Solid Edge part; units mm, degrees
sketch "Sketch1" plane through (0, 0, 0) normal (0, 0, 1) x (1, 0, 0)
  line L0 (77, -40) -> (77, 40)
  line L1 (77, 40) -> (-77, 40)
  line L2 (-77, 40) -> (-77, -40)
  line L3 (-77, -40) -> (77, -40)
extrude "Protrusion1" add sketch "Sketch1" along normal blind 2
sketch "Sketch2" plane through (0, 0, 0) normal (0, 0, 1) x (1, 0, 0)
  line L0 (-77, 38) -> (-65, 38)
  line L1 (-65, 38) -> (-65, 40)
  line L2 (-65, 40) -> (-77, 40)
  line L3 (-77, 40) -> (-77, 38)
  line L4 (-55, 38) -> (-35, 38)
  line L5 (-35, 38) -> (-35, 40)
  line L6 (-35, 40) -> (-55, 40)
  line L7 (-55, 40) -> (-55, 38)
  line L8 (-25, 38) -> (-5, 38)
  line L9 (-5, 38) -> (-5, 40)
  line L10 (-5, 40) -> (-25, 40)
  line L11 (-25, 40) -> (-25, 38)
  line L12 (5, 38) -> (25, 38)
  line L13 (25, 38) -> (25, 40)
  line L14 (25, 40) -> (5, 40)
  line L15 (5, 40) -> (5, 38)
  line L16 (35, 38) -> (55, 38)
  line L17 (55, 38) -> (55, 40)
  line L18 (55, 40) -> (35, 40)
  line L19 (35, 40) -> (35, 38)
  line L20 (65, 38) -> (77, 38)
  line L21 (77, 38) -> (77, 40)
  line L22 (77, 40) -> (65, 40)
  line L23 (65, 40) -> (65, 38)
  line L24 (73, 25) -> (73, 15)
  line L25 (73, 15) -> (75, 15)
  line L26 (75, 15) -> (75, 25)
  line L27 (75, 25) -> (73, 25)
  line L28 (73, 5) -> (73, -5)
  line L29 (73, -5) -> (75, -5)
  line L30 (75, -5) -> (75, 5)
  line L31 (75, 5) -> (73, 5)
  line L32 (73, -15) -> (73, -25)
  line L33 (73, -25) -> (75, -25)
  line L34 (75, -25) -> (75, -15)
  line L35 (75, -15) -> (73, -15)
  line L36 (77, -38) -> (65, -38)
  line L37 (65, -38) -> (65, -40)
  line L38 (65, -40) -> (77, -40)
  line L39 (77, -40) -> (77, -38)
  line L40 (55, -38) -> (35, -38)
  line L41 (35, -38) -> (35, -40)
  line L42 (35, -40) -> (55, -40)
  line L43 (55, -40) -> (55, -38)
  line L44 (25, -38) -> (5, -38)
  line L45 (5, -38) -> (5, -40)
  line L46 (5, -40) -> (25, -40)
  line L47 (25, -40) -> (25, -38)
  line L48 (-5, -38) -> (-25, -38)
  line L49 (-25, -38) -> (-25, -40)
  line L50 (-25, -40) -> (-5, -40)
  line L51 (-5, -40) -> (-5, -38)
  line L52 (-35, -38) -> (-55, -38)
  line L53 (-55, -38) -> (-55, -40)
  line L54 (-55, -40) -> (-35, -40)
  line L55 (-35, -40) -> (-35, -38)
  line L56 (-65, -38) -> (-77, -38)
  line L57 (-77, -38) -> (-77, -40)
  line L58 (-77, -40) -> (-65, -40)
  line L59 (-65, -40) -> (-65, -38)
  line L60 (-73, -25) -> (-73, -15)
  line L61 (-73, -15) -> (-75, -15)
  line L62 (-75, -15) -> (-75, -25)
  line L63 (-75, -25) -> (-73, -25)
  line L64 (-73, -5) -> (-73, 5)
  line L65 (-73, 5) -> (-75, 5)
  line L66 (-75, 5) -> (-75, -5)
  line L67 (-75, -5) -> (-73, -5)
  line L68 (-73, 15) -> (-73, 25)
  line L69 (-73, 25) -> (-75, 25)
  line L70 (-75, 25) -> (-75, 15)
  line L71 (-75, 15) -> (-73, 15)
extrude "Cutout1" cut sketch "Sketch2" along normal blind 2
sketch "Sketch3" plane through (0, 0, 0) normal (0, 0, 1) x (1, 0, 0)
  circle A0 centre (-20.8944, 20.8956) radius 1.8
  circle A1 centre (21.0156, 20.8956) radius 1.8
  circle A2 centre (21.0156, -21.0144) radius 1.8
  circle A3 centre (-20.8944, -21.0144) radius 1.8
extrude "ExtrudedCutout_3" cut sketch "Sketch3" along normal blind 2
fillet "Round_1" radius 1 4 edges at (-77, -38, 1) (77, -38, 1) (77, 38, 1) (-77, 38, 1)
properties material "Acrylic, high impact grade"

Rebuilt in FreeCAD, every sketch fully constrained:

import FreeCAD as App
import Part
import Sketcher

V = App.Vector


def edges_at(feature, points):
    """Names of the edges that pass closest to the given points."""
    edges = feature.Shape.Edges
    near = lambda p: min(range(len(edges)), key=lambda i: edges[i].distToShape(Part.Vertex(*p))[0])
    return sorted({f"Edge{near(p) + 1}" for p in points})

doc = App.newDocument("Part")
params = doc.addObject("Spreadsheet::Sheet", "Params")
for row, (alias, value) in enumerate([
    ("sketch1_width", "154 mm"),
    ("sketch1_height", "80 mm"),
    ("pad1_length", "2 mm"),
    ("sketch2_width", "12 mm"),
    ("sketch2_width2", "20 mm"),
    ("sketch2_width3", "2 mm"),
    ("sketch2_height", "10 mm"),
    ("pocket1_length", "2 mm"),
    ("sketch3_diameter", "3.6 mm"),
    ("pocket2_length", "2 mm"),
    ("fillet_radius", "1 mm"),
], start=1):
    params.set(f"A{row}", alias)
    params.set(f"B{row}", "=" + value)
    params.setAlias(f"B{row}", alias)

body = doc.addObject("PartDesign::Body", "Body")

# Sketch on XY plane
sketch1 = body.newObject("Sketcher::SketchObject", "Sketch")
sketch1.AttachmentSupport = (doc.getObject("XY_Plane"), [""])
sketch1.MapMode = "FlatFace"
sketch1.addGeometry(Part.LineSegment(V(-77, -40, 0), V(77, -40, 0)), False)
sketch1.addGeometry(Part.LineSegment(V(77, -40, 0), V(77, 40, 0)), False)
sketch1.addGeometry(Part.LineSegment(V(77, 40, 0), V(-77, 40, 0)), False)
sketch1.addGeometry(Part.LineSegment(V(-77, 40, 0), V(-77, -40, 0)), False)
sketch1.addConstraint(Sketcher.Constraint("Coincident", 0, 2, 1, 1))
sketch1.addConstraint(Sketcher.Constraint("Coincident", 1, 2, 2, 1))
sketch1.addConstraint(Sketcher.Constraint("Coincident", 2, 2, 3, 1))
sketch1.addConstraint(Sketcher.Constraint("Coincident", 3, 2, 0, 1))
sketch1.addConstraint(Sketcher.Constraint("Horizontal", 0))
sketch1.addConstraint(Sketcher.Constraint("Vertical", 1))
sketch1.addConstraint(Sketcher.Constraint("Horizontal", 2))
sketch1.addConstraint(Sketcher.Constraint("Vertical", 3))
sketch1.addConstraint(Sketcher.Constraint("Symmetric", 0, 2, 2, 2, -1, 1))
sketch1.addConstraint(Sketcher.Constraint("DistanceX", 0, 1, 0, 2, 154.0))
sketch1.addConstraint(Sketcher.Constraint("DistanceY", 1, 1, 1, 2, 80.0))
sketch1.setExpression("Constraints[9]", "Params.sketch1_width")
sketch1.setExpression("Constraints[10]", "Params.sketch1_height")
pad1 = body.newObject("PartDesign::Pad", "Pad")
pad1.Profile = sketch1
pad1.setExpression("Length", "Params.pad1_length")

# Sketch on XY plane
sketch2 = body.newObject("Sketcher::SketchObject", "Sketch001")
sketch2.AttachmentSupport = (doc.getObject("XY_Plane"), [""])
sketch2.MapMode = "FlatFace"
sketch2.addGeometry(Part.LineSegment(V(-77, 40, 0), V(-77, 38, 0)), False)
sketch2.addGeometry(Part.LineSegment(V(-77, 38, 0), V(-65, 38, 0)), False)
sketch2.addGeometry(Part.LineSegment(V(-65, 38, 0), V(-65, 40, 0)), False)
sketch2.addGeometry(Part.LineSegment(V(-65, 40, 0), V(-77, 40, 0)), False)
sketch2.addGeometry(Part.LineSegment(V(-55, 40, 0), V(-55, 38, 0)), False)
sketch2.addGeometry(Part.LineSegment(V(-55, 38, 0), V(-35, 38, 0)), False)
sketch2.addGeometry(Part.LineSegment(V(-35, 38, 0), V(-35, 40, 0)), False)
sketch2.addGeometry(Part.LineSegment(V(-35, 40, 0), V(-55, 40, 0)), False)
sketch2.addGeometry(Part.LineSegment(V(-25, 40, 0), V(-25, 38, 0)), False)
sketch2.addGeometry(Part.LineSegment(V(-25, 38, 0), V(-5, 38, 0)), False)
sketch2.addGeometry(Part.LineSegment(V(-5, 38, 0), V(-5, 40, 0)), False)
sketch2.addGeometry(Part.LineSegment(V(-5, 40, 0), V(-25, 40, 0)), False)
sketch2.addGeometry(Part.LineSegment(V(5, 40, 0), V(5, 38, 0)), False)
sketch2.addGeometry(Part.LineSegment(V(5, 38, 0), V(25, 38, 0)), False)
sketch2.addGeometry(Part.LineSegment(V(25, 38, 0), V(25, 40, 0)), False)
sketch2.addGeometry(Part.LineSegment(V(25, 40, 0), V(5, 40, 0)), False)
sketch2.addGeometry(Part.LineSegment(V(35, 40, 0), V(35, 38, 0)), False)
sketch2.addGeometry(Part.LineSegment(V(35, 38, 0), V(55, 38, 0)), False)
sketch2.addGeometry(Part.LineSegment(V(55, 38, 0), V(55, 40, 0)), False)
sketch2.addGeometry(Part.LineSegment(V(55, 40, 0), V(35, 40, 0)), False)
sketch2.addGeometry(Part.LineSegment(V(65, 40, 0), V(65, 38, 0)), False)
sketch2.addGeometry(Part.LineSegment(V(65, 38, 0), V(77, 38, 0)), False)
sketch2.addGeometry(Part.LineSegment(V(77, 38, 0), V(77, 40, 0)), False)
sketch2.addGeometry(Part.LineSegment(V(77, 40, 0), V(65, 40, 0)), False)
sketch2.addGeometry(Part.LineSegment(V(75, 25, 0), V(73, 25, 0)), False)
sketch2.addGeometry(Part.LineSegment(V(73, 25, 0), V(73, 15, 0)), False)
sketch2.addGeometry(Part.LineSegment(V(73, 15, 0), V(75, 15, 0)), False)
sketch2.addGeometry(Part.LineSegment(V(75, 15, 0), V(75, 25, 0)), False)
sketch2.addGeometry(Part.LineSegment(V(75, 5, 0), V(73, 5, 0)), False)
sketch2.addGeometry(Part.LineSegment(V(73, 5, 0), V(73, -5, 0)), False)
sketch2.addGeometry(Part.LineSegment(V(73, -5, 0), V(75, -5, 0)), False)
sketch2.addGeometry(Part.LineSegment(V(75, -5, 0), V(75, 5, 0)), False)
sketch2.addGeometry(Part.LineSegment(V(75, -15, 0), V(73, -15, 0)), False)
sketch2.addGeometry(Part.LineSegment(V(73, -15, 0), V(73, -25, 0)), False)
sketch2.addGeometry(Part.LineSegment(V(73, -25, 0), V(75, -25, 0)), False)
sketch2.addGeometry(Part.LineSegment(V(75, -25, 0), V(75, -15, 0)), False)
sketch2.addGeometry(Part.LineSegment(V(77, -40, 0), V(77, -38, 0)), False)
sketch2.addGeometry(Part.LineSegment(V(77, -38, 0), V(65, -38, 0)), False)
sketch2.addGeometry(Part.LineSegment(V(65, -38, 0), V(65, -40, 0)), False)
sketch2.addGeometry(Part.LineSegment(V(65, -40, 0), V(77, -40, 0)), False)
sketch2.addGeometry(Part.LineSegment(V(55, -40, 0), V(55, -38, 0)), False)
sketch2.addGeometry(Part.LineSegment(V(55, -38, 0), V(35, -38, 0)), False)
sketch2.addGeometry(Part.LineSegment(V(35, -38, 0), V(35, -40, 0)), False)
sketch2.addGeometry(Part.LineSegment(V(35, -40, 0), V(55, -40, 0)), False)
sketch2.addGeometry(Part.LineSegment(V(25, -40, 0), V(25, -38, 0)), False)
sketch2.addGeometry(Part.LineSegment(V(25, -38, 0), V(5, -38, 0)), False)
sketch2.addGeometry(Part.LineSegment(V(5, -38, 0), V(5, -40, 0)), False)
sketch2.addGeometry(Part.LineSegment(V(5, -40, 0), V(25, -40, 0)), False)
sketch2.addGeometry(Part.LineSegment(V(-5, -40, 0), V(-5, -38, 0)), False)
sketch2.addGeometry(Part.LineSegment(V(-5, -38, 0), V(-25, -38, 0)), False)
sketch2.addGeometry(Part.LineSegment(V(-25, -38, 0), V(-25, -40, 0)), False)
sketch2.addGeometry(Part.LineSegment(V(-25, -40, 0), V(-5, -40, 0)), False)
sketch2.addGeometry(Part.LineSegment(V(-35, -40, 0), V(-35, -38, 0)), False)
sketch2.addGeometry(Part.LineSegment(V(-35, -38, 0), V(-55, -38, 0)), False)
sketch2.addGeometry(Part.LineSegment(V(-55, -38, 0), V(-55, -40, 0)), False)
sketch2.addGeometry(Part.LineSegment(V(-55, -40, 0), V(-35, -40, 0)), False)
sketch2.addGeometry(Part.LineSegment(V(-65, -40, 0), V(-65, -38, 0)), False)
sketch2.addGeometry(Part.LineSegment(V(-65, -38, 0), V(-77, -38, 0)), False)
sketch2.addGeometry(Part.LineSegment(V(-77, -38, 0), V(-77, -40, 0)), False)
sketch2.addGeometry(Part.LineSegment(V(-77, -40, 0), V(-65, -40, 0)), False)
sketch2.addGeometry(Part.LineSegment(V(-75, -25, 0), V(-73, -25, 0)), False)
sketch2.addGeometry(Part.LineSegment(V(-73, -25, 0), V(-73, -15, 0)), False)
sketch2.addGeometry(Part.LineSegment(V(-73, -15, 0), V(-75, -15, 0)), False)
sketch2.addGeometry(Part.LineSegment(V(-75, -15, 0), V(-75, -25, 0)), False)
sketch2.addGeometry(Part.LineSegment(V(-75, -5, 0), V(-73, -5, 0)), False)
sketch2.addGeometry(Part.LineSegment(V(-73, -5, 0), V(-73, 5, 0)), False)
sketch2.addGeometry(Part.LineSegment(V(-73, 5, 0), V(-75, 5, 0)), False)
sketch2.addGeometry(Part.LineSegment(V(-75, 5, 0), V(-75, -5, 0)), False)
sketch2.addGeometry(Part.LineSegment(V(-75, 15, 0), V(-73, 15, 0)), False)
sketch2.addGeometry(Part.LineSegment(V(-73, 15, 0), V(-73, 25, 0)), False)
sketch2.addGeometry(Part.LineSegment(V(-73, 25, 0), V(-75, 25, 0)), False)
sketch2.addGeometry(Part.LineSegment(V(-75, 25, 0), V(-75, 15, 0)), False)
sketch2.addConstraint(Sketcher.Constraint("Coincident", 0, 2, 1, 1))
sketch2.addConstraint(Sketcher.Constraint("Coincident", 1, 2, 2, 1))
sketch2.addConstraint(Sketcher.Constraint("Coincident", 2, 2, 3, 1))
sketch2.addConstraint(Sketcher.Constraint("Coincident", 3, 2, 0, 1))
sketch2.addConstraint(Sketcher.Constraint("Coincident", 4, 2, 5, 1))
sketch2.addConstraint(Sketcher.Constraint("Coincident", 5, 2, 6, 1))
sketch2.addConstraint(Sketcher.Constraint("Coincident", 6, 2, 7, 1))
sketch2.addConstraint(Sketcher.Constraint("Coincident", 7, 2, 4, 1))
sketch2.addConstraint(Sketcher.Constraint("Coincident", 8, 2, 9, 1))
sketch2.addConstraint(Sketcher.Constraint("Coincident", 9, 2, 10, 1))
sketch2.addConstraint(Sketcher.Constraint("Coincident", 10, 2, 11, 1))
sketch2.addConstraint(Sketcher.Constraint("Coincident", 11, 2, 8, 1))
sketch2.addConstraint(Sketcher.Constraint("Coincident", 12, 2, 13, 1))
sketch2.addConstraint(Sketcher.Constraint("Coincident", 13, 2, 14, 1))
sketch2.addConstraint(Sketcher.Constraint("Coincident", 14, 2, 15, 1))
sketch2.addConstraint(Sketcher.Constraint("Coincident", 15, 2, 12, 1))
sketch2.addConstraint(Sketcher.Constraint("Coincident", 16, 2, 17, 1))
sketch2.addConstraint(Sketcher.Constraint("Coincident", 17, 2, 18, 1))
sketch2.addConstraint(Sketcher.Constraint("Coincident", 18, 2, 19, 1))
sketch2.addConstraint(Sketcher.Constraint("Coincident", 19, 2, 16, 1))
sketch2.addConstraint(Sketcher.Constraint("Coincident", 20, 2, 21, 1))
sketch2.addConstraint(Sketcher.Constraint("Coincident", 21, 2, 22, 1))
sketch2.addConstraint(Sketcher.Constraint("Coincident", 22, 2, 23, 1))
sketch2.addConstraint(Sketcher.Constraint("Coincident", 23, 2, 20, 1))
sketch2.addConstraint(Sketcher.Constraint("Coincident", 24, 2, 25, 1))
sketch2.addConstraint(Sketcher.Constraint("Coincident", 25, 2, 26, 1))
sketch2.addConstraint(Sketcher.Constraint("Coincident", 26, 2, 27, 1))
sketch2.addConstraint(Sketcher.Constraint("Coincident", 27, 2, 24, 1))
sketch2.addConstraint(Sketcher.Constraint("Coincident", 28, 2, 29, 1))
sketch2.addConstraint(Sketcher.Constraint("Coincident", 29, 2, 30, 1))
sketch2.addConstraint(Sketcher.Constraint("Coincident", 30, 2, 31, 1))
sketch2.addConstraint(Sketcher.Constraint("Coincident", 31, 2, 28, 1))
sketch2.addConstraint(Sketcher.Constraint("Coincident", 32, 2, 33, 1))
sketch2.addConstraint(Sketcher.Constraint("Coincident", 33, 2, 34, 1))
sketch2.addConstraint(Sketcher.Constraint("Coincident", 34, 2, 35, 1))
sketch2.addConstraint(Sketcher.Constraint("Coincident", 35, 2, 32, 1))
sketch2.addConstraint(Sketcher.Constraint("Coincident", 36, 2, 37, 1))
sketch2.addConstraint(Sketcher.Constraint("Coincident", 37, 2, 38, 1))
sketch2.addConstraint(Sketcher.Constraint("Coincident", 38, 2, 39, 1))
sketch2.addConstraint(Sketcher.Constraint("Coincident", 39, 2, 36, 1))
sketch2.addConstraint(Sketcher.Constraint("Coincident", 40, 2, 41, 1))
sketch2.addConstraint(Sketcher.Constraint("Coincident", 41, 2, 42, 1))
sketch2.addConstraint(Sketcher.Constraint("Coincident", 42, 2, 43, 1))
sketch2.addConstraint(Sketcher.Constraint("Coincident", 43, 2, 40, 1))
sketch2.addConstraint(Sketcher.Constraint("Coincident", 44, 2, 45, 1))
sketch2.addConstraint(Sketcher.Constraint("Coincident", 45, 2, 46, 1))
sketch2.addConstraint(Sketcher.Constraint("Coincident", 46, 2, 47, 1))
sketch2.addConstraint(Sketcher.Constraint("Coincident", 47, 2, 44, 1))
sketch2.addConstraint(Sketcher.Constraint("Coincident", 48, 2, 49, 1))
sketch2.addConstraint(Sketcher.Constraint("Coincident", 49, 2, 50, 1))
sketch2.addConstraint(Sketcher.Constraint("Coincident", 50, 2, 51, 1))
sketch2.addConstraint(Sketcher.Constraint("Coincident", 51, 2, 48, 1))
sketch2.addConstraint(Sketcher.Constraint("Coincident", 52, 2, 53, 1))
sketch2.addConstraint(Sketcher.Constraint("Coincident", 53, 2, 54, 1))
sketch2.addConstraint(Sketcher.Constraint("Coincident", 54, 2, 55, 1))
sketch2.addConstraint(Sketcher.Constraint("Coincident", 55, 2, 52, 1))
sketch2.addConstraint(Sketcher.Constraint("Coincident", 56, 2, 57, 1))
sketch2.addConstraint(Sketcher.Constraint("Coincident", 57, 2, 58, 1))
sketch2.addConstraint(Sketcher.Constraint("Coincident", 58, 2, 59, 1))
sketch2.addConstraint(Sketcher.Constraint("Coincident", 59, 2, 56, 1))
sketch2.addConstraint(Sketcher.Constraint("Coincident", 60, 2, 61, 1))
sketch2.addConstraint(Sketcher.Constraint("Coincident", 61, 2, 62, 1))
sketch2.addConstraint(Sketcher.Constraint("Coincident", 62, 2, 63, 1))
sketch2.addConstraint(Sketcher.Constraint("Coincident", 63, 2, 60, 1))
sketch2.addConstraint(Sketcher.Constraint("Coincident", 64, 2, 65, 1))
sketch2.addConstraint(Sketcher.Constraint("Coincident", 65, 2, 66, 1))
sketch2.addConstraint(Sketcher.Constraint("Coincident", 66, 2, 67, 1))
sketch2.addConstraint(Sketcher.Constraint("Coincident", 67, 2, 64, 1))
sketch2.addConstraint(Sketcher.Constraint("Coincident", 68, 2, 69, 1))
sketch2.addConstraint(Sketcher.Constraint("Coincident", 69, 2, 70, 1))
sketch2.addConstraint(Sketcher.Constraint("Coincident", 70, 2, 71, 1))
sketch2.addConstraint(Sketcher.Constraint("Coincident", 71, 2, 68, 1))
sketch2.addConstraint(Sketcher.Constraint("Vertical", 0))
sketch2.addConstraint(Sketcher.Constraint("Horizontal", 1))
sketch2.addConstraint(Sketcher.Constraint("Vertical", 2))
sketch2.addConstraint(Sketcher.Constraint("Horizontal", 3))
sketch2.addConstraint(Sketcher.Constraint("Vertical", 4))
sketch2.addConstraint(Sketcher.Constraint("Horizontal", 5))
sketch2.addConstraint(Sketcher.Constraint("Vertical", 6))
sketch2.addConstraint(Sketcher.Constraint("Horizontal", 7))
sketch2.addConstraint(Sketcher.Constraint("Vertical", 8))
sketch2.addConstraint(Sketcher.Constraint("Horizontal", 9))
sketch2.addConstraint(Sketcher.Constraint("Vertical", 10))
sketch2.addConstraint(Sketcher.Constraint("Horizontal", 11))
sketch2.addConstraint(Sketcher.Constraint("Vertical", 12))
sketch2.addConstraint(Sketcher.Constraint("Horizontal", 13))
sketch2.addConstraint(Sketcher.Constraint("Vertical", 14))
sketch2.addConstraint(Sketcher.Constraint("Horizontal", 15))
sketch2.addConstraint(Sketcher.Constraint("Vertical", 16))
sketch2.addConstraint(Sketcher.Constraint("Horizontal", 17))
sketch2.addConstraint(Sketcher.Constraint("Vertical", 18))
sketch2.addConstraint(Sketcher.Constraint("Horizontal", 19))
sketch2.addConstraint(Sketcher.Constraint("Vertical", 20))
sketch2.addConstraint(Sketcher.Constraint("Horizontal", 21))
sketch2.addConstraint(Sketcher.Constraint("Vertical", 22))
sketch2.addConstraint(Sketcher.Constraint("Horizontal", 23))
sketch2.addConstraint(Sketcher.Constraint("Horizontal", 24))
sketch2.addConstraint(Sketcher.Constraint("Vertical", 25))
sketch2.addConstraint(Sketcher.Constraint("Horizontal", 26))
sketch2.addConstraint(Sketcher.Constraint("Vertical", 27))
sketch2.addConstraint(Sketcher.Constraint("Horizontal", 28))
sketch2.addConstraint(Sketcher.Constraint("Vertical", 29))
sketch2.addConstraint(Sketcher.Constraint("Horizontal", 30))
sketch2.addConstraint(Sketcher.Constraint("Vertical", 31))
sketch2.addConstraint(Sketcher.Constraint("Horizontal", 32))
sketch2.addConstraint(Sketcher.Constraint("Vertical", 33))
sketch2.addConstraint(Sketcher.Constraint("Horizontal", 34))
sketch2.addConstraint(Sketcher.Constraint("Vertical", 35))
sketch2.addConstraint(Sketcher.Constraint("Vertical", 36))
sketch2.addConstraint(Sketcher.Constraint("Horizontal", 37))
sketch2.addConstraint(Sketcher.Constraint("Vertical", 38))
sketch2.addConstraint(Sketcher.Constraint("Horizontal", 39))
sketch2.addConstraint(Sketcher.Constraint("Vertical", 40))
sketch2.addConstraint(Sketcher.Constraint("Horizontal", 41))
sketch2.addConstraint(Sketcher.Constraint("Vertical", 42))
sketch2.addConstraint(Sketcher.Constraint("Horizontal", 43))
sketch2.addConstraint(Sketcher.Constraint("Vertical", 44))
sketch2.addConstraint(Sketcher.Constraint("Horizontal", 45))
sketch2.addConstraint(Sketcher.Constraint("Vertical", 46))
sketch2.addConstraint(Sketcher.Constraint("Horizontal", 47))
sketch2.addConstraint(Sketcher.Constraint("Vertical", 48))
sketch2.addConstraint(Sketcher.Constraint("Horizontal", 49))
sketch2.addConstraint(Sketcher.Constraint("Vertical", 50))
sketch2.addConstraint(Sketcher.Constraint("Horizontal", 51))
sketch2.addConstraint(Sketcher.Constraint("Vertical", 52))
sketch2.addConstraint(Sketcher.Constraint("Horizontal", 53))
sketch2.addConstraint(Sketcher.Constraint("Vertical", 54))
sketch2.addConstraint(Sketcher.Constraint("Horizontal", 55))
sketch2.addConstraint(Sketcher.Constraint("Vertical", 56))
sketch2.addConstraint(Sketcher.Constraint("Horizontal", 57))
sketch2.addConstraint(Sketcher.Constraint("Vertical", 58))
sketch2.addConstraint(Sketcher.Constraint("Horizontal", 59))
sketch2.addConstraint(Sketcher.Constraint("Horizontal", 60))
sketch2.addConstraint(Sketcher.Constraint("Vertical", 61))
sketch2.addConstraint(Sketcher.Constraint("Horizontal", 62))
sketch2.addConstraint(Sketcher.Constraint("Vertical", 63))
sketch2.addConstraint(Sketcher.Constraint("Horizontal", 64))
sketch2.addConstraint(Sketcher.Constraint("Vertical", 65))
sketch2.addConstraint(Sketcher.Constraint("Horizontal", 66))
sketch2.addConstraint(Sketcher.Constraint("Vertical", 67))
sketch2.addConstraint(Sketcher.Constraint("Horizontal", 68))
sketch2.addConstraint(Sketcher.Constraint("Vertical", 69))
sketch2.addConstraint(Sketcher.Constraint("Horizontal", 70))
sketch2.addConstraint(Sketcher.Constraint("Vertical", 71))
sketch2.addConstraint(Sketcher.Constraint("Symmetric", 0, 2, 36, 2, -1, 1))
sketch2.addConstraint(Sketcher.Constraint("Symmetric", 2, 2, 38, 2, -1, 1))
sketch2.addConstraint(Sketcher.Constraint("Symmetric", 4, 2, 40, 2, -1, 1))
sketch2.addConstraint(Sketcher.Constraint("Symmetric", 6, 2, 42, 2, -1, 1))
sketch2.addConstraint(Sketcher.Constraint("Symmetric", 8, 2, 44, 2, -1, 1))
sketch2.addConstraint(Sketcher.Constraint("Symmetric", 10, 2, 46, 2, -1, 1))
sketch2.addConstraint(Sketcher.Constraint("Symmetric", 12, 2, 48, 2, -1, 1))
sketch2.addConstraint(Sketcher.Constraint("Symmetric", 14, 2, 50, 2, -1, 1))
sketch2.addConstraint(Sketcher.Constraint("Symmetric", 16, 2, 52, 2, -1, 1))
sketch2.addConstraint(Sketcher.Constraint("Symmetric", 18, 2, 54, 2, -1, 1))
sketch2.addConstraint(Sketcher.Constraint("Symmetric", 20, 2, 56, 2, -1, 1))
sketch2.addConstraint(Sketcher.Constraint("Symmetric", 22, 2, 58, 2, -1, 1))
sketch2.addConstraint(Sketcher.Constraint("Symmetric", 24, 2, 60, 2, -1, 1))
sketch2.addConstraint(Sketcher.Constraint("Symmetric", 26, 2, 62, 2, -1, 1))
sketch2.addConstraint(Sketcher.Constraint("Symmetric", 28, 2, 64, 2, -1, 1))
sketch2.addConstraint(Sketcher.Constraint("Symmetric", 30, 2, 66, 2, -1, 1))
sketch2.addConstraint(Sketcher.Constraint("Symmetric", 32, 2, 68, 2, -1, 1))
sketch2.addConstraint(Sketcher.Constraint("Symmetric", 34, 2, 70, 2, -1, 1))
sketch2.addConstraint(Sketcher.Constraint("Symmetric", 9, 2, 12, 2, -2))
sketch2.addConstraint(Sketcher.Constraint("Symmetric", 11, 2, 14, 2, -2))
sketch2.addConstraint(Sketcher.Constraint("Symmetric", 5, 2, 16, 2, -2))
sketch2.addConstraint(Sketcher.Constraint("Symmetric", 7, 2, 18, 2, -2))
sketch2.addConstraint(Sketcher.Constraint("Symmetric", 1, 2, 20, 2, -2))
sketch2.addConstraint(Sketcher.Constraint("Symmetric", 3, 2, 22, 2, -2))
sketch2.addConstraint(Sketcher.Constraint("Symmetric", 33, 2, 60, 2, -2))
sketch2.addConstraint(Sketcher.Constraint("Symmetric", 35, 2, 62, 2, -2))
sketch2.addConstraint(Sketcher.Constraint("Horizontal", 1, 2, 4, 2))
sketch2.addConstraint(Sketcher.Constraint("Horizontal", 3, 2, 6, 2))
sketch2.addConstraint(Sketcher.Constraint("Horizontal", 5, 2, 8, 2))
sketch2.addConstraint(Sketcher.Constraint("Horizontal", 7, 2, 10, 2))
sketch2.addConstraint(Sketcher.Constraint("Horizontal", 30, 2, 64, 2))
sketch2.addConstraint(Sketcher.Constraint("Vertical", 25, 2, 28, 2))
sketch2.addConstraint(Sketcher.Constraint("Vertical", 27, 2, 30, 2))
sketch2.addConstraint(Sketcher.Constraint("Equal", 7, 9))
sketch2.addConstraint(Sketcher.Constraint("Equal", 70, 0))
sketch2.addConstraint(Sketcher.Constraint("Equal", 27, 29))
sketch2.addConstraint(Sketcher.Constraint("DistanceX", 1, 1, 1, 2, 12.0))
sketch2.addConstraint(Sketcher.Constraint("DistanceX", 5, 1, 5, 2, 20.0))
sketch2.addConstraint(Sketcher.Constraint("DistanceX", 24, 2, 24, 1, 2.0))
sketch2.addConstraint(Sketcher.Constraint("DistanceY", 25, 2, 25, 1, 10.0))
sketch2.addConstraint(Sketcher.Constraint("DistanceX", 0, 2, -1, 1, 77.0))
sketch2.addConstraint(Sketcher.Constraint("DistanceY", -1, 1, 0, 2, 38.0))
sketch2.addConstraint(Sketcher.Constraint("DistanceX", 4, 2, -1, 1, 55.0))
sketch2.addConstraint(Sketcher.Constraint("DistanceX", 8, 2, -1, 1, 25.0))
sketch2.addConstraint(Sketcher.Constraint("DistanceX", -1, 1, 24, 2, 73.0))
sketch2.addConstraint(Sketcher.Constraint("DistanceY", -1, 1, 24, 2, 25.0))
sketch2.setExpression("Constraints[180]", "Params.sketch2_width")
sketch2.setExpression("Constraints[181]", "Params.sketch2_width2")
sketch2.setExpression("Constraints[182]", "Params.sketch2_width3")
sketch2.setExpression("Constraints[183]", "Params.sketch2_height")
pocket1 = body.newObject("PartDesign::Pocket", "Pocket")
pocket1.Profile = sketch2
pocket1.setExpression("Length", "Params.pocket1_length")
pocket1.Reversed = True

# Sketch on XY plane
sketch3 = body.newObject("Sketcher::SketchObject", "Sketch002")
sketch3.AttachmentSupport = (doc.getObject("XY_Plane"), [""])
sketch3.MapMode = "FlatFace"
sketch3.addGeometry(Part.Circle(V(-20.8944, 20.8956, 0), V(0, 0, 1), 1.8), False)
sketch3.addGeometry(Part.Circle(V(21.0156, 20.8956, 0), V(0, 0, 1), 1.8), False)
sketch3.addGeometry(Part.Circle(V(21.0156, -21.0144, 0), V(0, 0, 1), 1.8), False)
sketch3.addGeometry(Part.Circle(V(-20.8944, -21.0144, 0), V(0, 0, 1), 1.8), False)
sketch3.addConstraint(Sketcher.Constraint("Equal", 0, 1))
sketch3.addConstraint(Sketcher.Constraint("Equal", 1, 2))
sketch3.addConstraint(Sketcher.Constraint("Equal", 2, 3))
sketch3.addConstraint(Sketcher.Constraint("Horizontal", 0, 3, 1, 3))
sketch3.addConstraint(Sketcher.Constraint("Horizontal", 2, 3, 3, 3))
sketch3.addConstraint(Sketcher.Constraint("Vertical", 1, 3, 2, 3))
sketch3.addConstraint(Sketcher.Constraint("Vertical", 0, 3, 3, 3))
sketch3.addConstraint(Sketcher.Constraint("Diameter", 0, 3.6))
sketch3.addConstraint(Sketcher.Constraint("DistanceX", 0, 3, 1, 3, 41.91))
sketch3.addConstraint(Sketcher.Constraint("DistanceY", 2, 3, 1, 3, 41.91))
sketch3.addConstraint(Sketcher.Constraint("DistanceX", 0, 3, -1, 1, 20.8944))
sketch3.addConstraint(Sketcher.Constraint("DistanceY", -1, 1, 0, 3, 20.8956))
sketch3.setExpression("Constraints[7]", "Params.sketch3_diameter")
pocket2 = body.newObject("PartDesign::Pocket", "Pocket001")
pocket2.Profile = sketch3
pocket2.setExpression("Length", "Params.pocket2_length")
pocket2.Reversed = True
doc.recompute()

fillet = body.newObject("PartDesign::Fillet", "Fillet")
fillet.Base = (pocket2, edges_at(pocket2, [
    (-77, -38, 1),
    (77, -38, 1),
    (77, 38, 1),
    (-77, 38, 1),
]))
fillet.setExpression("Radius", "Params.fillet_radius")

doc.recompute()
